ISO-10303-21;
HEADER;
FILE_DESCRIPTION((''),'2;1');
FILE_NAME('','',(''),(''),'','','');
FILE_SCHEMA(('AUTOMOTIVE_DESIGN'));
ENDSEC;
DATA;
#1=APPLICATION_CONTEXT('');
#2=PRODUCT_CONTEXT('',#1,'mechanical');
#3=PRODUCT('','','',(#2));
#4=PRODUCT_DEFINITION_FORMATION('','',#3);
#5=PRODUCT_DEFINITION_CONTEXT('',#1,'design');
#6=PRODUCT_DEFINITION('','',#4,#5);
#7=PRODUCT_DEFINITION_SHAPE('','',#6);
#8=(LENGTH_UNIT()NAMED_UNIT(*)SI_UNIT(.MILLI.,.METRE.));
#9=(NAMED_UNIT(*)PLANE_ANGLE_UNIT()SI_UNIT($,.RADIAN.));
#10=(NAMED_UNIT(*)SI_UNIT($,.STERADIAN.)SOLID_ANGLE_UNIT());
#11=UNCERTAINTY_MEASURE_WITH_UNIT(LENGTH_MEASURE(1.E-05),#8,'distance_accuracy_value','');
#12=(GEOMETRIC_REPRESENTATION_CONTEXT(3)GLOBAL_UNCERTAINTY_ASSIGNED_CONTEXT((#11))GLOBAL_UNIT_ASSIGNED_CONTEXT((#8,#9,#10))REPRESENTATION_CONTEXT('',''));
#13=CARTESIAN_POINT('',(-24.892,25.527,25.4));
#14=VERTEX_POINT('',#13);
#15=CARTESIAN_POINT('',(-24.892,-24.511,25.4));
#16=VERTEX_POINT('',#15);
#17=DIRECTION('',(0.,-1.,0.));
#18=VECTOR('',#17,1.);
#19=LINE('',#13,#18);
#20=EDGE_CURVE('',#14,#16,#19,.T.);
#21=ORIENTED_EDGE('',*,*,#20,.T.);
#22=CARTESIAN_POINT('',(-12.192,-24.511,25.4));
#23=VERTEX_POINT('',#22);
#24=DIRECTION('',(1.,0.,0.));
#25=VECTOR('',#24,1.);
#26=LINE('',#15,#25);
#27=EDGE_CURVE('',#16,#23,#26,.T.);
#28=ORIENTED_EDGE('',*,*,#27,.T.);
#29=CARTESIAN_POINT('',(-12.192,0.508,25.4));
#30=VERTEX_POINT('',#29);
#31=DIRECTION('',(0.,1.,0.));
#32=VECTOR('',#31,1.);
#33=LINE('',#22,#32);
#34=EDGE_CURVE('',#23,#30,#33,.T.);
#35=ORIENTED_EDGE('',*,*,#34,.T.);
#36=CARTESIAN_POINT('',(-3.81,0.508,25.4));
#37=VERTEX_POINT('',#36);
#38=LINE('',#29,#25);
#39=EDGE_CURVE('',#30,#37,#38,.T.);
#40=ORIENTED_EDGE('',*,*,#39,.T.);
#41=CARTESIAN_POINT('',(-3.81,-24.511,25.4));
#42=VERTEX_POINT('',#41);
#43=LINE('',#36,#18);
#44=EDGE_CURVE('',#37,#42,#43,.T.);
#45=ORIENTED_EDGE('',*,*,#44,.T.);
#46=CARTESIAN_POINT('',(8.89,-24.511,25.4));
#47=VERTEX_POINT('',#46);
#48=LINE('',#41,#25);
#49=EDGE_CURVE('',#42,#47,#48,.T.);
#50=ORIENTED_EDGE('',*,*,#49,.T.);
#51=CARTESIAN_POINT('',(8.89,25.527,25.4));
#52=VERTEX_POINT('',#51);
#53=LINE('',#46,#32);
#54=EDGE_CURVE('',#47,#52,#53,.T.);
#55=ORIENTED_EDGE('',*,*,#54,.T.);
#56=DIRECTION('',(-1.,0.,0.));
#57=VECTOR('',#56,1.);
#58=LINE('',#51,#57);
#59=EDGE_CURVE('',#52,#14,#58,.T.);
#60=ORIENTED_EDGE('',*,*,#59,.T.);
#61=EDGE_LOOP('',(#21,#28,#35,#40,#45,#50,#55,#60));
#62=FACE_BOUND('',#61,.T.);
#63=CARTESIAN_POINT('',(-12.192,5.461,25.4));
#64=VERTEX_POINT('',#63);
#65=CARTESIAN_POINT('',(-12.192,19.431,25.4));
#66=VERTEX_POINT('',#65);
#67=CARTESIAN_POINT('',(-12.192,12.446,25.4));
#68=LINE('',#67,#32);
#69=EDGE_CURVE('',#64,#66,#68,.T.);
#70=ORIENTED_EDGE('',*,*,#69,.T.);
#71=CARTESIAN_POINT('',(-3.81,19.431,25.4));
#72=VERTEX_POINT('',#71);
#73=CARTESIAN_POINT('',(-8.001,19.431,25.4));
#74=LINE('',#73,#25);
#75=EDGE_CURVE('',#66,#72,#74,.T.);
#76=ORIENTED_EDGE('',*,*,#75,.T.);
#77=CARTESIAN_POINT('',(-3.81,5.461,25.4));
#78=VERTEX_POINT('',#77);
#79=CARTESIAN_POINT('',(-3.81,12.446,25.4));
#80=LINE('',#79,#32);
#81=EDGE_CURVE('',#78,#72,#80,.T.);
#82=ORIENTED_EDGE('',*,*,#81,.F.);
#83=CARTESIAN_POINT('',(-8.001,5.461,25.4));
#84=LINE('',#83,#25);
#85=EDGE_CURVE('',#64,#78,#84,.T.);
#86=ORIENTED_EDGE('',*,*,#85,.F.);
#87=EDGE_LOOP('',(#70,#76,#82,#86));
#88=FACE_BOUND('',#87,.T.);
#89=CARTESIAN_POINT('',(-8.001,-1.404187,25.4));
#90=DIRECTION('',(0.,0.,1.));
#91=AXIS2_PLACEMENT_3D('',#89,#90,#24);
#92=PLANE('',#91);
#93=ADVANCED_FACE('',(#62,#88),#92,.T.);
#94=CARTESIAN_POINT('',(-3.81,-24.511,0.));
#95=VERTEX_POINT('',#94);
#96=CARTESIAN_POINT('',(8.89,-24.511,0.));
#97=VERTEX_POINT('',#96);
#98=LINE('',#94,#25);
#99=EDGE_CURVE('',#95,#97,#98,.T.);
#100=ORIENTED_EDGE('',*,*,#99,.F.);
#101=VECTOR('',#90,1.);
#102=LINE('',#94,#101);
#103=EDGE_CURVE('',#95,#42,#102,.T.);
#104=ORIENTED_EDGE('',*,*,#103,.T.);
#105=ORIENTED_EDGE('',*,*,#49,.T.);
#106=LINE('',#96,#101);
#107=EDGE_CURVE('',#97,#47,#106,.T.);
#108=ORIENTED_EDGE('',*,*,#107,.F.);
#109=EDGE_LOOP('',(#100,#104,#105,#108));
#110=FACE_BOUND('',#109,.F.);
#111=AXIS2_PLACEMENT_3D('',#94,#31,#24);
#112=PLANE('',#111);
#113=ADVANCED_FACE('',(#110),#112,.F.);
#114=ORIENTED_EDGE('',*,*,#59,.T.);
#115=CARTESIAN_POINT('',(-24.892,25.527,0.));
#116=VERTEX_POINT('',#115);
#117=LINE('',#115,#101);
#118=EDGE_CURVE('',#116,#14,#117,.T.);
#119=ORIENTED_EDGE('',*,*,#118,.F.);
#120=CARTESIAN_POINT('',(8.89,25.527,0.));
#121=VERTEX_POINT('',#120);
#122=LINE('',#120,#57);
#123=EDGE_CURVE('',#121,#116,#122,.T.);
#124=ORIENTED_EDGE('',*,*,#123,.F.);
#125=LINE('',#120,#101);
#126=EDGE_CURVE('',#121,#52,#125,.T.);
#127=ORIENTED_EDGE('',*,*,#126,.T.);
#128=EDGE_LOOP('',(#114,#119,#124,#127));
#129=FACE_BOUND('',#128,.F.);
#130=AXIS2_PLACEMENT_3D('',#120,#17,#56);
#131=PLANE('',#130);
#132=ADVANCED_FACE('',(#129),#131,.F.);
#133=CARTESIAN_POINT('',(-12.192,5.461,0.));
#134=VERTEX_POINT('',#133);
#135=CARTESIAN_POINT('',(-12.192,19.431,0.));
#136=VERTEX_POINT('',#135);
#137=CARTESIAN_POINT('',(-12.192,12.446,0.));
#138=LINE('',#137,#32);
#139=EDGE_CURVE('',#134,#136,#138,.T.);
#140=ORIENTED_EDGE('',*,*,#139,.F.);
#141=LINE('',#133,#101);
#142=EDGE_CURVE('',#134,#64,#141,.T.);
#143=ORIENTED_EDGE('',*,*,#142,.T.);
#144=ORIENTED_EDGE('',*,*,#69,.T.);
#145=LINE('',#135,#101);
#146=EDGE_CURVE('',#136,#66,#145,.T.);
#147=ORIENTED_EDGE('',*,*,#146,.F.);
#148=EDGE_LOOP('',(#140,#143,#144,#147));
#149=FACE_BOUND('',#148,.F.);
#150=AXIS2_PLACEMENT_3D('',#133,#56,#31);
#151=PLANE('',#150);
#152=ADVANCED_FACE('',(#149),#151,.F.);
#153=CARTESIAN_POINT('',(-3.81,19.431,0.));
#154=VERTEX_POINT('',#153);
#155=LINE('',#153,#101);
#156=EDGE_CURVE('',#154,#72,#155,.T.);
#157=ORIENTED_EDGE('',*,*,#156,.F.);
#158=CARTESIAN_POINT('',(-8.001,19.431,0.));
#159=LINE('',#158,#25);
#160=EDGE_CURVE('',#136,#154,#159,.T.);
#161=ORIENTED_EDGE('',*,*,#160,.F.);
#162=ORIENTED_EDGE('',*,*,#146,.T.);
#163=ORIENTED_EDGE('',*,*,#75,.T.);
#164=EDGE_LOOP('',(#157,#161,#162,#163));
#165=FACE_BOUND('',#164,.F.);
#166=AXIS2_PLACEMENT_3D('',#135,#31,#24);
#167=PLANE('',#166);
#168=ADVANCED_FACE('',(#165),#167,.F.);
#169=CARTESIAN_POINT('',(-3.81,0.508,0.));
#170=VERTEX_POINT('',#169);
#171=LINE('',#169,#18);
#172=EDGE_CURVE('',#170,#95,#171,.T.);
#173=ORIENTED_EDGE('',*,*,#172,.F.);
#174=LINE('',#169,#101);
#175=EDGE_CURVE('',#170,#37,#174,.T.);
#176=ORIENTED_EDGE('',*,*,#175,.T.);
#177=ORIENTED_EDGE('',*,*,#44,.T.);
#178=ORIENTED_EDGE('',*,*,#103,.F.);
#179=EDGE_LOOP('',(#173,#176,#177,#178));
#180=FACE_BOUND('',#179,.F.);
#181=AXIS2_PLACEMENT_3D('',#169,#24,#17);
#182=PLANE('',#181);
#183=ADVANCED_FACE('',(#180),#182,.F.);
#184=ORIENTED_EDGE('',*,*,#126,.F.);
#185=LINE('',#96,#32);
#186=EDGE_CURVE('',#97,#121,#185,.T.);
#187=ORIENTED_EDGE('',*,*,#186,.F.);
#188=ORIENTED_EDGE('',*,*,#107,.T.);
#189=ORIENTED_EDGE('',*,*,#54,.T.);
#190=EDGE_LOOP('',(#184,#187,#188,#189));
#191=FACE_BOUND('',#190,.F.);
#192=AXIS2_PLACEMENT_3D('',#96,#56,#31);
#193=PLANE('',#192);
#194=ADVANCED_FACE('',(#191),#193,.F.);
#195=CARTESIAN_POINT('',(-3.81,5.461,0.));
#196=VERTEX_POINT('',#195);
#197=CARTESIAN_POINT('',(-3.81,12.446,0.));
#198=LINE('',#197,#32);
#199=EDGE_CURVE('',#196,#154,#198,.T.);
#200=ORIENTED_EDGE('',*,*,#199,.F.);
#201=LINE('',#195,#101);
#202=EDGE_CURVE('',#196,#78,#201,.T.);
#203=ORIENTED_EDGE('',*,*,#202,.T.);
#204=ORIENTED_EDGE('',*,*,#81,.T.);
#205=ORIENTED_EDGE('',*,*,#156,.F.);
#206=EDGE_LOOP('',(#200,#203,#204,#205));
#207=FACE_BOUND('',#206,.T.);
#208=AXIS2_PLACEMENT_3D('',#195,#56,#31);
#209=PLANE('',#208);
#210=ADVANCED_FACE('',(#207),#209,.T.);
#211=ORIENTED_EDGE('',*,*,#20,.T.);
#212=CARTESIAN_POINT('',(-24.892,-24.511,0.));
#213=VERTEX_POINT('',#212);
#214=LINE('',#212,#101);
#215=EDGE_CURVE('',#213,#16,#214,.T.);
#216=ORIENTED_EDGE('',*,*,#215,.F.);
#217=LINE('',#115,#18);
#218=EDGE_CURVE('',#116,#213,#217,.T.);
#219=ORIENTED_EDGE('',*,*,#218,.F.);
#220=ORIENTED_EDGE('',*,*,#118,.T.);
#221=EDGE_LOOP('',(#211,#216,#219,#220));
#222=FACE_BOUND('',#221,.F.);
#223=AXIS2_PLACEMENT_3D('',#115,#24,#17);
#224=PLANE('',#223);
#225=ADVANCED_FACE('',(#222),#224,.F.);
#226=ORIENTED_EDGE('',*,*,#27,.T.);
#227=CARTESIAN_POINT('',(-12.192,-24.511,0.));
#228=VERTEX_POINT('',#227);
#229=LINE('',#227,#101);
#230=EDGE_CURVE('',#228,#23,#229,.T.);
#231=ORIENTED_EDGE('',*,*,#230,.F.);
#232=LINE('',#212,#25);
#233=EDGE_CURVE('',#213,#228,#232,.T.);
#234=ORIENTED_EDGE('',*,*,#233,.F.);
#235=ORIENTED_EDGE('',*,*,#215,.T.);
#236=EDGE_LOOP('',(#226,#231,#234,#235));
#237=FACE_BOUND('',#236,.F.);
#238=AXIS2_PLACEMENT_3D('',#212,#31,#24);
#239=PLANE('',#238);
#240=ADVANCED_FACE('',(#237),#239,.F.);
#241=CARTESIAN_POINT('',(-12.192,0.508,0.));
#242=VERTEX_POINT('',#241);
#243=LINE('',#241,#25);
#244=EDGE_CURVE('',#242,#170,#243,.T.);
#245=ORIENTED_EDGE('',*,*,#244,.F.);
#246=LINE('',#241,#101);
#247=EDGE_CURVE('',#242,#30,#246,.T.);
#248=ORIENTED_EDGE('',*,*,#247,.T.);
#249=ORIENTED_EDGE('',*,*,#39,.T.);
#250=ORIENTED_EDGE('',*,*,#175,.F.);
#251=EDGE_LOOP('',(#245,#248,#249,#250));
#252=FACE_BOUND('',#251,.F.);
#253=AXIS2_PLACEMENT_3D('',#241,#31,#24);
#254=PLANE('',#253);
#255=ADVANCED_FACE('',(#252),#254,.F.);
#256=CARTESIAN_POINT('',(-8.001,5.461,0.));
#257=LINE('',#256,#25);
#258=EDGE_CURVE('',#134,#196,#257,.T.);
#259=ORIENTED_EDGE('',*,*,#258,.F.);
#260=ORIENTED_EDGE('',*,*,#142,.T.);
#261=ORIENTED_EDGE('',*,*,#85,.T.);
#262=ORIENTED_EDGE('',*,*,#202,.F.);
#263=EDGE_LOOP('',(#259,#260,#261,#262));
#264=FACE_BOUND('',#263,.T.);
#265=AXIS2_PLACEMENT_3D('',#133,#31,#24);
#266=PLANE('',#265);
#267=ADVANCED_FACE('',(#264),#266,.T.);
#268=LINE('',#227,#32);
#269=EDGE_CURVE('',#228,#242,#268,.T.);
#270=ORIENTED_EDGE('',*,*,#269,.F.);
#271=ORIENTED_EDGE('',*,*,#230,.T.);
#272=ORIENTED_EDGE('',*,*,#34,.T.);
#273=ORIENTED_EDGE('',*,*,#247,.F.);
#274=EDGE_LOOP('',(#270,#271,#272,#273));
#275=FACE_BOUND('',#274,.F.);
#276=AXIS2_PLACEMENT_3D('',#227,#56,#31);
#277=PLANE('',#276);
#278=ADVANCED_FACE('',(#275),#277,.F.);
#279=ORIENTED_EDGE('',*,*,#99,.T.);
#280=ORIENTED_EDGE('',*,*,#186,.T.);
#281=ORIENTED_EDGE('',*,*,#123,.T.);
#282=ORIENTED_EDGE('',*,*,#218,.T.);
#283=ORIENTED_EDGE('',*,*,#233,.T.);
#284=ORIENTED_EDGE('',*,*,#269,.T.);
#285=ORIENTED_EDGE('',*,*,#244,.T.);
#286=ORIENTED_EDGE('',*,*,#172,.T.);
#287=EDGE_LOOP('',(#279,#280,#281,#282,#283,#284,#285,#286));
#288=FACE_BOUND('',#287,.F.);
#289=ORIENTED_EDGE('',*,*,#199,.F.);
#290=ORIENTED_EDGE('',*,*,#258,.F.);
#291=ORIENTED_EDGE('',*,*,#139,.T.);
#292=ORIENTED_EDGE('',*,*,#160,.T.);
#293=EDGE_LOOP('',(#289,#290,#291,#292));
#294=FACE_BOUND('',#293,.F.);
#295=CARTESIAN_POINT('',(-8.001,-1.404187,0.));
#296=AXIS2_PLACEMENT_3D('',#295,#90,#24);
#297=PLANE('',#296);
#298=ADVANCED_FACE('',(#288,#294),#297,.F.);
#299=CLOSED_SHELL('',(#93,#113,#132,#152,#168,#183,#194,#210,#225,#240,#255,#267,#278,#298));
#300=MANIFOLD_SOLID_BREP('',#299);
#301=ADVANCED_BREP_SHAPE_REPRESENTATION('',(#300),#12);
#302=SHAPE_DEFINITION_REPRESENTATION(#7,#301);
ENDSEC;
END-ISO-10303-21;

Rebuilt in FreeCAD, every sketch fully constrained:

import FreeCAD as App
import Part
import Sketcher
Q = App.Units.Quantity


def add_polygon(sketch, points):
    """Adds a closed chain of lines whose ends are joined by coincident constraints."""
    first, n = sketch.GeometryCount, len(points)
    for a, b in zip(points, points[1:] + points[:1]):
        sketch.addGeometry(Part.LineSegment(App.Vector(*a, 0), App.Vector(*b, 0)), False)
    for i in range(n):
        sketch.addConstraint(Sketcher.Constraint("Coincident", first + i, 2, first + (i + 1) % n, 1))

doc = App.newDocument("Part")
body = doc.addObject("PartDesign::Body", "Body")

sketch1 = body.newObject("Sketcher::SketchObject", "Sketch")
sketch1.AttachmentSupport = (doc.getObject("XY_Plane"), [""])
sketch1.MapMode = "FlatFace"
add_polygon(sketch1, [(-25, 26), (-25, -25), (-12, -25), (-12, 1), (-4, 1), (-4, -25), (9, -25), (9, 26)])
add_polygon(sketch1, [(-4, 5), (-12, 5), (-12, 19), (-4, 19)])
sketch1.addConstraint([
    Sketcher.Constraint("Vertical", 0),
    Sketcher.Constraint("Horizontal", 1),
    Sketcher.Constraint("Vertical", 2),
    Sketcher.Constraint("Horizontal", 3),
    Sketcher.Constraint("Vertical", 4),
    Sketcher.Constraint("Horizontal", 5),
    Sketcher.Constraint("Vertical", 6),
    Sketcher.Constraint("Horizontal", 7),
    Sketcher.Constraint("Horizontal", 8),
    Sketcher.Constraint("Vertical", 9),
    Sketcher.Constraint("Horizontal", 10),
    Sketcher.Constraint("Vertical", 11),
    Sketcher.Constraint("Horizontal", 1, 2, 4, 2),
    Sketcher.Constraint("Vertical", 2, 2, 8, 2),
    Sketcher.Constraint("Vertical", 4, 2, 10, 2),
    Sketcher.Constraint("Equal", 1, 5),
    Sketcher.Constraint("DistanceX", 1, 1, 1, 2, Q("0.5 in")),
    Sketcher.Constraint("DistanceX", 3, 1, 3, 2, Q("0.33 in")),
    Sketcher.Constraint("DistanceY", 0, 2, 0, 1, Q("1.97 in")),
    Sketcher.Constraint("DistanceY", 9, 1, 9, 2, Q("0.55 in")),
    Sketcher.Constraint("DistanceY", 2, 1, 2, 2, Q("0.985 in")),
    Sketcher.Constraint("DistanceX", 0, 2, -1, 1, Q("0.98 in")),
    Sketcher.Constraint("DistanceY", -1, 1, 2, 2, Q("0.02 in")),
    Sketcher.Constraint("DistanceY", 8, 2, 7, 2, Q("0.79 in")),
])
pad1 = body.newObject("PartDesign::Pad", "Pad")
pad1.Profile = sketch1
pad1.Length = Q("1 in")

doc.recompute()
